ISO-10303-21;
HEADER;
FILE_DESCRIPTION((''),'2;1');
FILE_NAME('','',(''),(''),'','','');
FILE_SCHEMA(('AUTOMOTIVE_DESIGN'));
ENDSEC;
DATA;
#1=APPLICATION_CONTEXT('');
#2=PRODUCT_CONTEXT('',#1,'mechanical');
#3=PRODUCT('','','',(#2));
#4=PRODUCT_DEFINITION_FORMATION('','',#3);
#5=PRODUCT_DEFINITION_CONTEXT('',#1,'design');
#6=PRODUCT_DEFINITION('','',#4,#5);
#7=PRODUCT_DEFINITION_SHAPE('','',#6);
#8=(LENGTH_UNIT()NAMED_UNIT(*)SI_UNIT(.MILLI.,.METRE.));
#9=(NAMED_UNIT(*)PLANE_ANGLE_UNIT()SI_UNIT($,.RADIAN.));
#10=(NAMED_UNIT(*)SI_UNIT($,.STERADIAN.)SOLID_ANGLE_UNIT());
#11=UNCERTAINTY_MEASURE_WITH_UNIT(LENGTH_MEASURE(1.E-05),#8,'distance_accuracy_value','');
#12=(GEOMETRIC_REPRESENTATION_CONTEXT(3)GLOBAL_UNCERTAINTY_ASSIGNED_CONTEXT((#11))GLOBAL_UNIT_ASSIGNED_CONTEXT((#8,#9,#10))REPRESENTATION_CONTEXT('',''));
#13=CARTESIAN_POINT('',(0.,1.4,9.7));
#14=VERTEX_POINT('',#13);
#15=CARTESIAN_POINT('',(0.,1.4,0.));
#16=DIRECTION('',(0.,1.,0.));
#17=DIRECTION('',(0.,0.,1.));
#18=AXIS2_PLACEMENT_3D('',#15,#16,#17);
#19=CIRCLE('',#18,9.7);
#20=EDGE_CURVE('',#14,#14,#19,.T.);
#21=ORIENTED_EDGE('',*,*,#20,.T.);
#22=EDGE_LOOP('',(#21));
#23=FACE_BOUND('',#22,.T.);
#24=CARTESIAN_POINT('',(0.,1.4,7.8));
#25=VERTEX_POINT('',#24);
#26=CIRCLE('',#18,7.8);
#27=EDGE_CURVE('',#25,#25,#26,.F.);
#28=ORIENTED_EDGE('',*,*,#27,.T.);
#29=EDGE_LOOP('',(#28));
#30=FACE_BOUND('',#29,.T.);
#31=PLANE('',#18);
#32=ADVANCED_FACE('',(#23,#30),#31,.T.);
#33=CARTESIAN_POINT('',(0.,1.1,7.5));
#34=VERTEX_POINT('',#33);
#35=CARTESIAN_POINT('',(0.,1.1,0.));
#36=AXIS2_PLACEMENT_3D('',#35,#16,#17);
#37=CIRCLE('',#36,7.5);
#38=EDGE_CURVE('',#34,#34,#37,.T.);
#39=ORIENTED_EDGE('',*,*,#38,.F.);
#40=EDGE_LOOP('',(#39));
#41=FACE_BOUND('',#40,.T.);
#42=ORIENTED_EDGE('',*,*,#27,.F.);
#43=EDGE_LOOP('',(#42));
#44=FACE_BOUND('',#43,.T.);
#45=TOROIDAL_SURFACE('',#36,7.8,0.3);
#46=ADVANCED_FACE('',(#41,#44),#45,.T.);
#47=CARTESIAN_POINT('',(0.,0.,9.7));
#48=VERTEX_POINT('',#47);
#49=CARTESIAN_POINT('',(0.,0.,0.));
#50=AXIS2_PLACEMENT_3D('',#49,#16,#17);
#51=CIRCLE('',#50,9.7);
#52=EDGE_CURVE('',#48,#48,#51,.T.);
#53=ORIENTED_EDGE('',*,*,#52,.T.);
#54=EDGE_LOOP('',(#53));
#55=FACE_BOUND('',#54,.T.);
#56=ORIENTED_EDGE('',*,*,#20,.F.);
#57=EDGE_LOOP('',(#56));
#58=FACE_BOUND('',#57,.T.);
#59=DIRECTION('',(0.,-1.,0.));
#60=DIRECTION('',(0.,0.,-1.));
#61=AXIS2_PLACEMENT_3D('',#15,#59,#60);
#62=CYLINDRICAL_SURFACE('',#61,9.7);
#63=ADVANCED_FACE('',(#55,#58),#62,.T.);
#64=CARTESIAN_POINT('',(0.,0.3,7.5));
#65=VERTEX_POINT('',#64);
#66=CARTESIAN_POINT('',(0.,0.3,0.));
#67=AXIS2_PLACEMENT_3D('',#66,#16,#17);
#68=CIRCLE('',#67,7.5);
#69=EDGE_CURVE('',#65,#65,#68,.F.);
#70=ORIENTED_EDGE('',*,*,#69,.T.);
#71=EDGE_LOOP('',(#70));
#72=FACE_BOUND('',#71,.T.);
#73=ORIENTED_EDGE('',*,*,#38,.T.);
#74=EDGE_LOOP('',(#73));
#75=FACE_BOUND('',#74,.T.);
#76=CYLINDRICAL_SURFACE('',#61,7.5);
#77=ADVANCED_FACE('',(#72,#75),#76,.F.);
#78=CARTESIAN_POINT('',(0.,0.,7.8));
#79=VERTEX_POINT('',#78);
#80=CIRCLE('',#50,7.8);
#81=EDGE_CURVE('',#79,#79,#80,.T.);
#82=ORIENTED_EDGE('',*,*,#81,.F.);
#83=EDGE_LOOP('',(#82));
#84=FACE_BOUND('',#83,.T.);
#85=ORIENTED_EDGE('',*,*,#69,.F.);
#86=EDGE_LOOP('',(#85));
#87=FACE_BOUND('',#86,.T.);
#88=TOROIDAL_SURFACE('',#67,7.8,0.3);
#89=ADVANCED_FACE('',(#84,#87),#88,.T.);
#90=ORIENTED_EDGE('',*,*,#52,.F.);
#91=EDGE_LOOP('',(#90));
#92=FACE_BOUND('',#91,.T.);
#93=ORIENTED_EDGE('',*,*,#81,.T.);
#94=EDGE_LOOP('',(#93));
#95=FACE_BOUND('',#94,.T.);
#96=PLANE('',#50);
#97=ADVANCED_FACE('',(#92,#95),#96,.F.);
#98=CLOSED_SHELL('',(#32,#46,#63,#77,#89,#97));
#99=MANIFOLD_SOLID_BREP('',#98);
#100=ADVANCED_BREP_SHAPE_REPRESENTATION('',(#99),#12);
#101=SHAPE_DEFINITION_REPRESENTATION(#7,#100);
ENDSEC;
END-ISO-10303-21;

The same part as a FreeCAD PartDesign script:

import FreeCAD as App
import Part
import Sketcher
from FreeCAD import Vector
Q = App.Units.Quantity


def edges_at(feature, points):
    """Names of the edges that pass closest to the given points."""
    edges = feature.Shape.Edges
    near = lambda p: min(range(len(edges)), key=lambda i: edges[i].distToShape(Part.Vertex(*p))[0])
    return sorted({f"Edge{near(p) + 1}" for p in points})

doc = App.newDocument("Part")
body = doc.addObject("PartDesign::Body", "Body")

# Sketch on XZ plane
sketch1 = doc.addObject("Sketcher::SketchObject", "Sketch")
body.addObject(sketch1)
sketch1.AttachmentSupport = (doc.XZ_Plane, [""])
sketch1.MapMode = "FlatFace"
sketch1.addGeometry(Part.Circle(Vector(0, 0, 0), Vector(0, 0, 1), 9.7), False)
sketch1.addGeometry(Part.Circle(Vector(0, 0, 0), Vector(0, 0, 1), 7.5), False)
sketch1.addConstraint(Sketcher.Constraint("Coincident", 0, 3, -1, 1))
sketch1.addConstraint(Sketcher.Constraint("Coincident", 1, 3, -1, 1))
sketch1.addConstraint(Sketcher.Constraint("Diameter", 1, Q("15 mm")))
sketch1.addConstraint(Sketcher.Constraint("Diameter", 0, Q("19.4 mm")))
pad1 = doc.addObject("PartDesign::Pad", "Pad")
body.addObject(pad1)
pad1.Profile = sketch1
pad1.Length = 1.4
pad1.Reversed = True
doc.recompute()

fillet = doc.addObject("PartDesign::Fillet", "Fillet")
body.addObject(fillet)
fillet.Base = (pad1, edges_at(pad1, [(0, 0, -7.5), (0, 1.4, -7.5)]))
fillet.Radius = 0.3

doc.recompute()
